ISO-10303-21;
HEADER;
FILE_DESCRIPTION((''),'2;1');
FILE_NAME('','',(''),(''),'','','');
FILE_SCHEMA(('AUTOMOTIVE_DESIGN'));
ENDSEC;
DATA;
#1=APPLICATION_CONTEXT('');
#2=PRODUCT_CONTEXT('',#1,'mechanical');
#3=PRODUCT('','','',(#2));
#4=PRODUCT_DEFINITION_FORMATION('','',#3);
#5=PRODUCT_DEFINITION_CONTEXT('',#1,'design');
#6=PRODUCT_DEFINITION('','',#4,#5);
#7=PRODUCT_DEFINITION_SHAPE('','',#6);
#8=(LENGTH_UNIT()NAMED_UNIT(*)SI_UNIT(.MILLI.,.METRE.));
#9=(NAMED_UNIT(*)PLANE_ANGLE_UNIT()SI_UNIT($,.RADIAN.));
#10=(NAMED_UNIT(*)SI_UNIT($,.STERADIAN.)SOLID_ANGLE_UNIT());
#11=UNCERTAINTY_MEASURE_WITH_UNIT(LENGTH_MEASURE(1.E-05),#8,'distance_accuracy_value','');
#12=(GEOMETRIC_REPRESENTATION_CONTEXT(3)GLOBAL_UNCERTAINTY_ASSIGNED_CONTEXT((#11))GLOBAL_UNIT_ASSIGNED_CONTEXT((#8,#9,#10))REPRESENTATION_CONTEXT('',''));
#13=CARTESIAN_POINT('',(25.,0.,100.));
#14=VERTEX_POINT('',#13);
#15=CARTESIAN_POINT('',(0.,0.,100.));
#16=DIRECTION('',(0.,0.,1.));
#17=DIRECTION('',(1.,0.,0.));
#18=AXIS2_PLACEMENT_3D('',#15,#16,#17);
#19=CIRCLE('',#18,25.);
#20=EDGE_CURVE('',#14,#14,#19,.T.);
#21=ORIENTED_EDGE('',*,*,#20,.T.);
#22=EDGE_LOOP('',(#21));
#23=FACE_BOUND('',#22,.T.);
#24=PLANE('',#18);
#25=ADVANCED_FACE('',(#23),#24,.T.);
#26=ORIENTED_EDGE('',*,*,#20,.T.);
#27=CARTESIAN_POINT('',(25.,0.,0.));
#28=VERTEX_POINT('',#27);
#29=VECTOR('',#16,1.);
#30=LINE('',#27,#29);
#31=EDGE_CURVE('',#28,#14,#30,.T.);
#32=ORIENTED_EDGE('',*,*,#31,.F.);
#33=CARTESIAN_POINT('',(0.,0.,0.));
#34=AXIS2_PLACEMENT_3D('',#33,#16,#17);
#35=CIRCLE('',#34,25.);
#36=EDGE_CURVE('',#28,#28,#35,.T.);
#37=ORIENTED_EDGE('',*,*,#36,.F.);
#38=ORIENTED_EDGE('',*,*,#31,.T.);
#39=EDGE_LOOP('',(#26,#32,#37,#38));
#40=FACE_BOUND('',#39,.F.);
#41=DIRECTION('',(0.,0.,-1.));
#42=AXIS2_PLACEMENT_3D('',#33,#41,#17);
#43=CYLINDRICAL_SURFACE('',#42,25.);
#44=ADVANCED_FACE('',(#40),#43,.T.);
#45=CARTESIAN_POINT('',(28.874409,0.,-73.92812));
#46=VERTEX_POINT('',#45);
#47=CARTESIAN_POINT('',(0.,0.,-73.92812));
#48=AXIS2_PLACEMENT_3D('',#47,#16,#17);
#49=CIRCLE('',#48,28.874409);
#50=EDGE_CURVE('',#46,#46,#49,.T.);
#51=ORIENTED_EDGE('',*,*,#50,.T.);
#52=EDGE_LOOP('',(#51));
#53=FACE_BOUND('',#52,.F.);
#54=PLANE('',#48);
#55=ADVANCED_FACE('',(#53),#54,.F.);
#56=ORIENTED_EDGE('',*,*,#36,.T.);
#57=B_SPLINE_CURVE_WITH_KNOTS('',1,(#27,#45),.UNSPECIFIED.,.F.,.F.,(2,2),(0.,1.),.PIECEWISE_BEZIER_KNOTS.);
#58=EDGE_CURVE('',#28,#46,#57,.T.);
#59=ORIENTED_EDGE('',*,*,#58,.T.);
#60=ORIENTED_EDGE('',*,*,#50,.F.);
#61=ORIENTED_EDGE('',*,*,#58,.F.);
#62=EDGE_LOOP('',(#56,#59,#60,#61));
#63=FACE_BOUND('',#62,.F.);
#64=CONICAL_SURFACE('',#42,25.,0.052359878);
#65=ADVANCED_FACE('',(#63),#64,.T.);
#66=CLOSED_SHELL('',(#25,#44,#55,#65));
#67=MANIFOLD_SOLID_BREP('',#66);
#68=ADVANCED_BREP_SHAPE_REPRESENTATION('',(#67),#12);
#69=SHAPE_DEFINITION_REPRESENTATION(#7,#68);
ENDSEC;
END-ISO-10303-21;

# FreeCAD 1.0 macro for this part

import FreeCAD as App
import Part
import Sketcher
from FreeCAD import Vector
Q = App.Units.Quantity

doc = App.newDocument("Part")
body = doc.addObject("PartDesign::Body", "Body")

sketch1 = body.newObject("Sketcher::SketchObject", "Sketch")
sketch1.AttachmentSupport = (doc.getObject("XY_Plane"), [""])
sketch1.MapMode = "FlatFace"
sketch1.addGeometry(Part.Circle(Vector(0, 0, 0), Vector(0, 0, 1), 25), False)
sketch1.addConstraint(Sketcher.Constraint("Coincident", 0, 3, -1, 1))
sketch1.addConstraint(Sketcher.Constraint("Diameter", 0, Q("50 mm")))
pad1 = body.newObject("PartDesign::Pad", "Pad")
pad1.Profile = sketch1
pad1.Length = 100
pad2 = body.newObject("PartDesign::Pad", "Pad001")
pad2.Profile = sketch1
pad2.Length = 73.92812
pad2.Reversed = True
pad2.TaperAngle = 3

doc.recompute()
